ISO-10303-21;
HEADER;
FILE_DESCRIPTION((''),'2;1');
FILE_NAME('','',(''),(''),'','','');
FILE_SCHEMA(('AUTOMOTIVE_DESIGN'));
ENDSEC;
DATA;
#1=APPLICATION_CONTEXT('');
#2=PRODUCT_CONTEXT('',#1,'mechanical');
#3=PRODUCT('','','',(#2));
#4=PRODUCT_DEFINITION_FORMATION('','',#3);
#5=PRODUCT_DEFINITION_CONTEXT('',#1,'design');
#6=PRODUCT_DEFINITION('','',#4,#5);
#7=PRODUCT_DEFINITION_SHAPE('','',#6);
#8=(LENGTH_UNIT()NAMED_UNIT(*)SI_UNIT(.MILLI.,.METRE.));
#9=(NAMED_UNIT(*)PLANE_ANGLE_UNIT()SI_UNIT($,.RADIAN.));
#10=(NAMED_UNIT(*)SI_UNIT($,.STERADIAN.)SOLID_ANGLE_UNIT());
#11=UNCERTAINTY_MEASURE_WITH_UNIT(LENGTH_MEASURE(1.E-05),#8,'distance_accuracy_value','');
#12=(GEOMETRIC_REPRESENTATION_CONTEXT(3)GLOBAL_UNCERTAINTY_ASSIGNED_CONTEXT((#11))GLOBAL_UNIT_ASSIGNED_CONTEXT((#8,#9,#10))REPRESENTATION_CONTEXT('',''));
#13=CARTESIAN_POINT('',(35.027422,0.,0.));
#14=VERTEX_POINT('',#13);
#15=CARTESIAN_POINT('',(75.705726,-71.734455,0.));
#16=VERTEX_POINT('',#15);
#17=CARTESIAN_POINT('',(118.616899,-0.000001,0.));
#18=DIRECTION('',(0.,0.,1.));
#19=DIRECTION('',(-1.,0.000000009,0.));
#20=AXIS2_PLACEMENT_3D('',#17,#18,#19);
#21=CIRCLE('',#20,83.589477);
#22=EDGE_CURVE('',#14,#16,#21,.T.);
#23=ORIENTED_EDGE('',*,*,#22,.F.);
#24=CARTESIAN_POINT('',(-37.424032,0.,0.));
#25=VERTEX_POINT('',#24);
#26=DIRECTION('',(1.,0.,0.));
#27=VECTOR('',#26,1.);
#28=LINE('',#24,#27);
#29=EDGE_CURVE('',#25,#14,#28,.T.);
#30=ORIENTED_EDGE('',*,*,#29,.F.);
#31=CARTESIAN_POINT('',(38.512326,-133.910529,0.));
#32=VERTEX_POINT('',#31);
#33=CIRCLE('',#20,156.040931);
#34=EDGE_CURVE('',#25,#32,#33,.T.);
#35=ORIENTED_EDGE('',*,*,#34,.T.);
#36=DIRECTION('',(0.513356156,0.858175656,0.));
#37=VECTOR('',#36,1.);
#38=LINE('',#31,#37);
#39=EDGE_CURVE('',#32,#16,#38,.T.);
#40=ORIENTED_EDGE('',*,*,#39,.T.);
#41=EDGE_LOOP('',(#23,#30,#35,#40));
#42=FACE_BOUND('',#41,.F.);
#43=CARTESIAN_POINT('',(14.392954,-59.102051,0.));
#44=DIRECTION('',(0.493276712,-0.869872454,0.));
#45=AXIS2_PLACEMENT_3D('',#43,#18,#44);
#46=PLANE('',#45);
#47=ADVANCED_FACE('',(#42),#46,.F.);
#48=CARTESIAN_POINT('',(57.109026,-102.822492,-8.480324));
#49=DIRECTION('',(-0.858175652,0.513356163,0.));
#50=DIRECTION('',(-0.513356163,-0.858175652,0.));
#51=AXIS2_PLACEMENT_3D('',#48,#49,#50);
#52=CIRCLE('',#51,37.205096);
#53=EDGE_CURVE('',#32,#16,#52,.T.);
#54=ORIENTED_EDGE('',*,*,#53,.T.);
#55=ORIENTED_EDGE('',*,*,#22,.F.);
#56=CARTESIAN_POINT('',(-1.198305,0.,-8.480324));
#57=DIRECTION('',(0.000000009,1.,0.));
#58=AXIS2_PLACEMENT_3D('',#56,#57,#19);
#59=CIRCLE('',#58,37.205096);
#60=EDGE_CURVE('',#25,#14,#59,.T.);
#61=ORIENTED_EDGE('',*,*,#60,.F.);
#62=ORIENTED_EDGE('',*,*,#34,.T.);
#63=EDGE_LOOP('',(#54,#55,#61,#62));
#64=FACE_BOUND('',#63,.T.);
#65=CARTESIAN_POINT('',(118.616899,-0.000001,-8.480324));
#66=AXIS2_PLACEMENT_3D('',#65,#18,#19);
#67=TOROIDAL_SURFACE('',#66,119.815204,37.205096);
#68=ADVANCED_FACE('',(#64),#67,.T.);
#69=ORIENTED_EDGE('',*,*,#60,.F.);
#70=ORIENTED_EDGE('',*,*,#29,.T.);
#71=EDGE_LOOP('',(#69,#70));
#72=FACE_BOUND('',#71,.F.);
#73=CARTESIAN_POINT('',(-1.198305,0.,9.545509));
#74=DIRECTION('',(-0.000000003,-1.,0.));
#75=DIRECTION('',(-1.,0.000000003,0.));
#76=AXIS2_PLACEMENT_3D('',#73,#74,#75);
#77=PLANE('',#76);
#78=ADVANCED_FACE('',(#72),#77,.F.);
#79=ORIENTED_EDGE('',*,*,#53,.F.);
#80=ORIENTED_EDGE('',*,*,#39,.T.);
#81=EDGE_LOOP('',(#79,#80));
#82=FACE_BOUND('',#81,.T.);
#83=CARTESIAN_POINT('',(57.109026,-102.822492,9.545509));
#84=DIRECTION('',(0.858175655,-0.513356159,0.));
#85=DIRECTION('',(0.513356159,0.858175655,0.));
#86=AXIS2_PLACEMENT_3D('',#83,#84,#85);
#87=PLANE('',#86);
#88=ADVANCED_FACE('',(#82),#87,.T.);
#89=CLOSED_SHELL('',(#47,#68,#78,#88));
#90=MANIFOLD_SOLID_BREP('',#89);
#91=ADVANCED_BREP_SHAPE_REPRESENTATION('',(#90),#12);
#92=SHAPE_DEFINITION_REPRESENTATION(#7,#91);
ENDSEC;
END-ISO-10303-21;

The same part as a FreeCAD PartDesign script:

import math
import FreeCAD as App
import Part
import Sketcher

V = App.Vector
Q = App.Units.Quantity

doc = App.newDocument("Part")
body = doc.addObject("PartDesign::Body", "Body")

# Sketch on XZ plane
sketch1 = doc.addObject("Sketcher::SketchObject", "Sketch")
body.addObject(sketch1)
sketch1.AttachmentSupport = (doc.XZ_Plane, [""])
sketch1.MapMode = "FlatFace"
sketch1.addGeometry([
    Part.ArcOfCircle(Part.Circle(V(-1, -8, 0), V(0, 0, 1), 37), math.radians(13), math.radians(167)),
    Part.LineSegment(V(-37, 0, 0), V(35, 0, 0)),
], False)
sketch1.addConstraint([
    Sketcher.Constraint("Coincident", 0, 1, 1, 2),
    Sketcher.Constraint("Coincident", 1, 1, 0, 2),
    Sketcher.Constraint("Horizontal", 1),
    Sketcher.Constraint("PointOnObject", 0, 1, -1),
    Sketcher.Constraint("Radius", 0, Q("37.205096 mm")),
    Sketcher.Constraint("DistanceX", 1, 1, 1, 2, Q("72.451454 mm")),
    Sketcher.Constraint("DistanceX", -1, 1, 0, 1, Q("35.027422 mm")),
])

# Sketch on XY plane
sketch2 = doc.addObject("Sketcher::SketchObject", "Sketch001")
body.addObject(sketch2)
sketch2.AttachmentSupport = (doc.XY_Plane, [""])
sketch2.MapMode = "FlatFace"
sketch2.addGeometry(Part.ArcOfCircle(Part.Circle(V(119, 0, 0), V(0, 0, 1), 119), math.radians(180), math.radians(239)), False)
sketch2.addConstraint([
    Sketcher.Constraint("Coincident", 0, 1, -1, 1),
    Sketcher.Constraint("PointOnObject", 0, 3, -1),
    Sketcher.Constraint("Radius", 0, Q("118.616899 mm")),
    Sketcher.Constraint("DistanceX", -1, 1, 0, 2, Q("57.724183 mm")),
])
doc.recompute()

additivepipe = doc.addObject("PartDesign::AdditivePipe", "AdditivePipe")
body.addObject(additivepipe)
additivepipe.Profile = sketch1
additivepipe.Spine = (sketch2, ["Edge1"])

doc.recompute()
